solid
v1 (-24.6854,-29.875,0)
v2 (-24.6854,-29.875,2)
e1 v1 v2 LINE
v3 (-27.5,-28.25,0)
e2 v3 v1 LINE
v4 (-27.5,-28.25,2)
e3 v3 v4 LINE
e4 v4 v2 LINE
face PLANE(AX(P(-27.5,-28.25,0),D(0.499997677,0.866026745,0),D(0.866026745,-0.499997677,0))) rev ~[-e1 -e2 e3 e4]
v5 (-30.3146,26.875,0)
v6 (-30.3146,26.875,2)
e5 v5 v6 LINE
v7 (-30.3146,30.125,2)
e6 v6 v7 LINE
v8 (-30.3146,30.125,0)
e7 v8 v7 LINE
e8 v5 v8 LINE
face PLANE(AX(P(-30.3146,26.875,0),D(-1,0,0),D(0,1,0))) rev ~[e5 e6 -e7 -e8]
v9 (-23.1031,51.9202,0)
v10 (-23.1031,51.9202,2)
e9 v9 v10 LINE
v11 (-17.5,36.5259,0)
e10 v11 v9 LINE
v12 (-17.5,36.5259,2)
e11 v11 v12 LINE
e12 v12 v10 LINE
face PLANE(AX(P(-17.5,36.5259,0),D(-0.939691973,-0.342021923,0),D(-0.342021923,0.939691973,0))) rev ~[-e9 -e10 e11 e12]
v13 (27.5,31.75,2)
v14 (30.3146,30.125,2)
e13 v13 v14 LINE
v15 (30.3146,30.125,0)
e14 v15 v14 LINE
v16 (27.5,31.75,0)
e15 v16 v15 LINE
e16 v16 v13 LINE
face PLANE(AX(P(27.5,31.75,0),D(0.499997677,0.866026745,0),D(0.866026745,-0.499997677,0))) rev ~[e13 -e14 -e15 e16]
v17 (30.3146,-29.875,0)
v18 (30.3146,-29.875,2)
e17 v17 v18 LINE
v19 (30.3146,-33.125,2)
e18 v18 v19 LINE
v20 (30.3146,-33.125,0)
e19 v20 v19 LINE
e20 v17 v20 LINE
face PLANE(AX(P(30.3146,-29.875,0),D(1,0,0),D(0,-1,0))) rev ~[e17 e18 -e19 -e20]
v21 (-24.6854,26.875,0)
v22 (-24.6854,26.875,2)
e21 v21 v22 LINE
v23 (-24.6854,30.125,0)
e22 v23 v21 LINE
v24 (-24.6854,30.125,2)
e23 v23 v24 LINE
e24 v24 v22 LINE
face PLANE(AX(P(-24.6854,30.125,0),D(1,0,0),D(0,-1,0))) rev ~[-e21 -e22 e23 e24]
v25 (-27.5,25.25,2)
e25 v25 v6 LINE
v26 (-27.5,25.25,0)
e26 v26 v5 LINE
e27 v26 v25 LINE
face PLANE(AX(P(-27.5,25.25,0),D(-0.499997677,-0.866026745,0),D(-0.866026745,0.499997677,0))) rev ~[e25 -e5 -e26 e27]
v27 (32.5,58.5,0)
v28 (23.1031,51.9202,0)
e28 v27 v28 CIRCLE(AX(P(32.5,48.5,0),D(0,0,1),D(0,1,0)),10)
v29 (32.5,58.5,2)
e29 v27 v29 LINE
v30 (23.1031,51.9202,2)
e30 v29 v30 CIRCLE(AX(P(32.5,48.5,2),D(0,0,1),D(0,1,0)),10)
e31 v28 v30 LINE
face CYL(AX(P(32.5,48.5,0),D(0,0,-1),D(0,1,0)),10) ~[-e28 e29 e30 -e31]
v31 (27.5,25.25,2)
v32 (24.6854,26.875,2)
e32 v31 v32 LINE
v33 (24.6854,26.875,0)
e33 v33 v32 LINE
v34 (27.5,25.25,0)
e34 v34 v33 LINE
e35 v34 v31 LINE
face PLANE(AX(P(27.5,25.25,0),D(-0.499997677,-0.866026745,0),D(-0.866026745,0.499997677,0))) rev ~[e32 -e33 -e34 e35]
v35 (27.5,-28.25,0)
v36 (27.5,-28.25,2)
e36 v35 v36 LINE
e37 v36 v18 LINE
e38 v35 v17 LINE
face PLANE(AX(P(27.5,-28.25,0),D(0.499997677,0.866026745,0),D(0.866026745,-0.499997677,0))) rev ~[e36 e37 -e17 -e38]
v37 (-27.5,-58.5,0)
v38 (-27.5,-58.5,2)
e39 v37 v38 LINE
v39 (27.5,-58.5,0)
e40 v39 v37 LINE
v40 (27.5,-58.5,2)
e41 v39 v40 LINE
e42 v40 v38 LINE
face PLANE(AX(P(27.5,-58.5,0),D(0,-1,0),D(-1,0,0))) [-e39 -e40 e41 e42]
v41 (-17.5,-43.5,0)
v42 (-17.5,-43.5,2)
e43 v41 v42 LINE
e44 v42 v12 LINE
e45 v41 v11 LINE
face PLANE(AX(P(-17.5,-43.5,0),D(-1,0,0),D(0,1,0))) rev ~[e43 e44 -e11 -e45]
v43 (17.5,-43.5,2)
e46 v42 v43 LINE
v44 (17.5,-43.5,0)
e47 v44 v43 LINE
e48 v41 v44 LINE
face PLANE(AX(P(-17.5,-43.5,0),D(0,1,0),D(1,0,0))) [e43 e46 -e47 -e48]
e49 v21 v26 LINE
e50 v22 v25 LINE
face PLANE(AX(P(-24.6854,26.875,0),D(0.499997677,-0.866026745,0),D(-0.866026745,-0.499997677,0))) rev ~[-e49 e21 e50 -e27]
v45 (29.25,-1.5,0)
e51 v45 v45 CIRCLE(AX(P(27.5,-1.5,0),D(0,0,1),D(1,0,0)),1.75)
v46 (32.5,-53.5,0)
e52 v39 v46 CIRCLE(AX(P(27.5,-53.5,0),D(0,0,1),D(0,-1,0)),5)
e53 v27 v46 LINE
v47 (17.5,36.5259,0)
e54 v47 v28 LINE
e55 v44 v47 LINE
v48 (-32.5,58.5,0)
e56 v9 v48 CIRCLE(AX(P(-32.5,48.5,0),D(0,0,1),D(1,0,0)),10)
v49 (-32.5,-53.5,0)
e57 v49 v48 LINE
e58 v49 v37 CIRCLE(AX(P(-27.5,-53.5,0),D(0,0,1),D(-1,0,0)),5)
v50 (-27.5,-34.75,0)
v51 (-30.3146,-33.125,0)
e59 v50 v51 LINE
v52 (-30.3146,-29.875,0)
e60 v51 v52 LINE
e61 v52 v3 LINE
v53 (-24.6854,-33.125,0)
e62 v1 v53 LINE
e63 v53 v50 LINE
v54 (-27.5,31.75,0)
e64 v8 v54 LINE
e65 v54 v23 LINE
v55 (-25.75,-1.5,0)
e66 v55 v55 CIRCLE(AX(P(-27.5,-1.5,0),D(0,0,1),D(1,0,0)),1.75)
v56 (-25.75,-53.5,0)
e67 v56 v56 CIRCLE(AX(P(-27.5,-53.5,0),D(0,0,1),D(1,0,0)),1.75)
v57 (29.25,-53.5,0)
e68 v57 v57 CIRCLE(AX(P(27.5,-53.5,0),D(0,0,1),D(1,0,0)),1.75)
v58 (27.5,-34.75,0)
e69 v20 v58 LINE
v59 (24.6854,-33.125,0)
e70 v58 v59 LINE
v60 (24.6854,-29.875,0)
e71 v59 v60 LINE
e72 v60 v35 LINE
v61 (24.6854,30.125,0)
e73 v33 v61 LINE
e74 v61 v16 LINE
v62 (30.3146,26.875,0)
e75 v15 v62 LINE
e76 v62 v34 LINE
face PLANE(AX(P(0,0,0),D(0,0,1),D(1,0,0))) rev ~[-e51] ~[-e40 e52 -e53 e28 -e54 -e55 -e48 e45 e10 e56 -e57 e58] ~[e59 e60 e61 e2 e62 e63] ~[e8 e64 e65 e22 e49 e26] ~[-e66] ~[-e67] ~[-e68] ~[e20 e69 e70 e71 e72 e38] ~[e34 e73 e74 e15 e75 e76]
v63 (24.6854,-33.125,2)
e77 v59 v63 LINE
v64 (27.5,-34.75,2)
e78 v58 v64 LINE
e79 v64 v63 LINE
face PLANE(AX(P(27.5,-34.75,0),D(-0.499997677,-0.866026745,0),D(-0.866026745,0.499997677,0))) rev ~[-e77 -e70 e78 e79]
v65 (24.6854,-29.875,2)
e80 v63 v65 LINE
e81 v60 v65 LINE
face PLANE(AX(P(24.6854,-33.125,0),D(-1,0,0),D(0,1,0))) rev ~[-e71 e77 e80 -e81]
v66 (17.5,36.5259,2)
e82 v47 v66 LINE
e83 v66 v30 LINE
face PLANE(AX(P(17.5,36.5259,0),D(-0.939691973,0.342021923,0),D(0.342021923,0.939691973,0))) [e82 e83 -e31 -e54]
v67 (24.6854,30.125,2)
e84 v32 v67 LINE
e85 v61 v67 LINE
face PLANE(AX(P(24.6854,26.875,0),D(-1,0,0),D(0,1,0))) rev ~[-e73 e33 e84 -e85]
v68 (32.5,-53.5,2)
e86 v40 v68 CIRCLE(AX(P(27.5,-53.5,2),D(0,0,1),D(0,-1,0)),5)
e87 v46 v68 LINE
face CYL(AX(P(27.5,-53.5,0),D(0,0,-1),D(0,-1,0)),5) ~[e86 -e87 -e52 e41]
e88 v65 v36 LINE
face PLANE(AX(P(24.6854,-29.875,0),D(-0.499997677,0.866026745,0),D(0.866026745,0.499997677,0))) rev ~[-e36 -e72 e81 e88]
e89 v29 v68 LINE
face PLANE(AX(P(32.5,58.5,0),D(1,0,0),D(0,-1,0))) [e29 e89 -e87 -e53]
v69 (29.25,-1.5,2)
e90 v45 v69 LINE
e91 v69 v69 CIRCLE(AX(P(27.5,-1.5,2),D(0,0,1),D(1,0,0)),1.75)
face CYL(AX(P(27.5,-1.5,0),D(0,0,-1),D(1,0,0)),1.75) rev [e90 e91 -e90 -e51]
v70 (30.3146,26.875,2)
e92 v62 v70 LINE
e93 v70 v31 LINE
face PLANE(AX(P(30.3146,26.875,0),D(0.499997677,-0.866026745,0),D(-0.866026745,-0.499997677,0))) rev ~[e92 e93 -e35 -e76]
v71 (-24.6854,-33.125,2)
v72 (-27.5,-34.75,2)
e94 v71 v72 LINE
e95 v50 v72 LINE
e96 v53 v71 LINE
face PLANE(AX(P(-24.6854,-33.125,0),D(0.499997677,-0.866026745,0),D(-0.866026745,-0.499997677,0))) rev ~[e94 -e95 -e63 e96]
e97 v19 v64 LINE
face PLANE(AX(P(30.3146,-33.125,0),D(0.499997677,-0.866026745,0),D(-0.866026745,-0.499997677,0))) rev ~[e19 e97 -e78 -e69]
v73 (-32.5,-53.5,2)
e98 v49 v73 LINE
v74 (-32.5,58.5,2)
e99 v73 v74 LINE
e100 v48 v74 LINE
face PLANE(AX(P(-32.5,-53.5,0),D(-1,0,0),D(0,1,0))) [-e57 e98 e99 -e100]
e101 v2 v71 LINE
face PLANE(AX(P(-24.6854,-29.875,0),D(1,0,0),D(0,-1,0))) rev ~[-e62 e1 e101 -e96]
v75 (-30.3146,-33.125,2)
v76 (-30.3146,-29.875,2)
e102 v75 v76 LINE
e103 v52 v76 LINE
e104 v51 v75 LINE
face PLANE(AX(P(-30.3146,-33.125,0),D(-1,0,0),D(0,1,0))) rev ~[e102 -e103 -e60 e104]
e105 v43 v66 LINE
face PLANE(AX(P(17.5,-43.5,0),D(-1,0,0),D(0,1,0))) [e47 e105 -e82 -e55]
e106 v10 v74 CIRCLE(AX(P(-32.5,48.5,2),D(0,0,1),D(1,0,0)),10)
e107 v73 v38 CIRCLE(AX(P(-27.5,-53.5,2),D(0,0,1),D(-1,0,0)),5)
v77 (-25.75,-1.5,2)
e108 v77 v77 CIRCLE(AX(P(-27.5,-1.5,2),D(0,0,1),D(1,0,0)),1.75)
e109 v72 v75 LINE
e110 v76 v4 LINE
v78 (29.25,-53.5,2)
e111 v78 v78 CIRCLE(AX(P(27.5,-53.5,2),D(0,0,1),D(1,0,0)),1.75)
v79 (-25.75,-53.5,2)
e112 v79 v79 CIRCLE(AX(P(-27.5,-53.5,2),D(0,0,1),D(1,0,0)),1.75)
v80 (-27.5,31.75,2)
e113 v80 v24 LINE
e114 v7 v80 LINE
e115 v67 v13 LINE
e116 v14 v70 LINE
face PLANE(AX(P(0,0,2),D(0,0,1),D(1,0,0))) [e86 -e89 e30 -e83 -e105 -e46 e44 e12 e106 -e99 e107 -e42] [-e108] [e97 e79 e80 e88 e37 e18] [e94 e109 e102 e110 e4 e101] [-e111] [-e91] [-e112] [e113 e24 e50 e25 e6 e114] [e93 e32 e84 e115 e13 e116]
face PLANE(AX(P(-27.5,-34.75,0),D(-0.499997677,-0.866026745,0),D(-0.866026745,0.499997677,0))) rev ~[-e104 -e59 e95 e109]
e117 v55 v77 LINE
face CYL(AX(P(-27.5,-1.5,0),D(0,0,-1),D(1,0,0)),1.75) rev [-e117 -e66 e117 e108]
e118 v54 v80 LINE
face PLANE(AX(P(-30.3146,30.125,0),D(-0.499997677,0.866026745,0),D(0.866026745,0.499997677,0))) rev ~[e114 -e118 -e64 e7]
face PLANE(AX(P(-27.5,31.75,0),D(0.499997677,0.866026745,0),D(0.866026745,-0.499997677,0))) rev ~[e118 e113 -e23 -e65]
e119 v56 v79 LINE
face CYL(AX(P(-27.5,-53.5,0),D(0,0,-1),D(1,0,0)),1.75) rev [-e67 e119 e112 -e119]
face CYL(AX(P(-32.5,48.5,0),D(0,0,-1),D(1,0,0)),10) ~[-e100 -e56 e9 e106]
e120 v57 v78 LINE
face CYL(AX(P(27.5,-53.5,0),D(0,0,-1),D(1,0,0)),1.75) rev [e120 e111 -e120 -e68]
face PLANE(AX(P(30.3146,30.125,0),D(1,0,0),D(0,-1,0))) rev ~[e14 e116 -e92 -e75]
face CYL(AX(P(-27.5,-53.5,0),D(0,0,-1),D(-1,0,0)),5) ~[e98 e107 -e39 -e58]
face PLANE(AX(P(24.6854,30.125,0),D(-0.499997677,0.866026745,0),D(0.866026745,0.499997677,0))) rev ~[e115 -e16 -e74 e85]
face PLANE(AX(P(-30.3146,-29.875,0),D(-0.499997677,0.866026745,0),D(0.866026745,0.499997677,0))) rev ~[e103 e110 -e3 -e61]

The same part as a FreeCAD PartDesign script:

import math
import FreeCAD as App
import Part
import Sketcher
Q = App.Units.Quantity

doc = App.newDocument("Part")
body = doc.addObject("PartDesign::Body", "Body")

# Sketch on XY plane
sketch1 = body.newObject("Sketcher::SketchObject", "Sketch")
sketch1.AttachmentSupport = (doc.getObject("XY_Plane"), [""])
sketch1.MapMode = "FlatFace"
sketch1.addGeometry([
    Part.LineSegment(App.Vector(-32.5, 58.5, 0), App.Vector(-32.5, -53.5, 0)),  # 0
    Part.ArcOfCircle(Part.Circle(App.Vector(-27.5, -53.5, 0), App.Vector(0, 0, 1), 5), math.radians(180), math.radians(270)),  # 1
    Part.LineSegment(App.Vector(-27.5, -58.5, 0), App.Vector(27.5, -58.5, 0)),  # 2
    Part.ArcOfCircle(Part.Circle(App.Vector(27.5, -53.5, 0), App.Vector(0, 0, 1), 5), math.radians(-90), math.radians(0)),  # 3
    Part.LineSegment(App.Vector(32.5, -53.5, 0), App.Vector(32.5, 58.5, 0)),  # 4
    Part.ArcOfCircle(Part.Circle(App.Vector(32.5, 48.5, 0), App.Vector(0, 0, 1), 10), math.radians(90), math.radians(160)),  # 5
    Part.LineSegment(App.Vector(23.1, 51.9, 0), App.Vector(17.5, 36.5, 0)),  # 6
    Part.LineSegment(App.Vector(17.5, 36.5, 0), App.Vector(17.5, -43.5, 0)),  # 7
    Part.LineSegment(App.Vector(17.5, -43.5, 0), App.Vector(-17.5, -43.5, 0)),  # 8
    Part.LineSegment(App.Vector(-17.5, -43.5, 0), App.Vector(-17.5, 36.5, 0)),  # 9
    Part.LineSegment(App.Vector(-17.5, 36.5, 0), App.Vector(-23.1, 51.9, 0)),  # 10
    Part.ArcOfCircle(Part.Circle(App.Vector(-32.5, 48.5, 0), App.Vector(0, 0, 1), 10), math.radians(20), math.radians(90)),  # 11
    Part.Circle(App.Vector(-27.5, -53.5, 0), App.Vector(0, 0, 1), 1.8),  # 12
    Part.LineSegment(App.Vector(-24.7, -29.9, 0), App.Vector(-24.7, -33.1, 0)),  # 13
    Part.LineSegment(App.Vector(-24.7, -33.1, 0), App.Vector(-27.5, -34.8, 0)),  # 14
    Part.LineSegment(App.Vector(-27.5, -34.8, 0), App.Vector(-30.3, -33.1, 0)),  # 15
    Part.LineSegment(App.Vector(-30.3, -33.1, 0), App.Vector(-30.3, -29.9, 0)),  # 16
    Part.LineSegment(App.Vector(-30.3, -29.9, 0), App.Vector(-27.5, -28.2, 0)),  # 17
    Part.LineSegment(App.Vector(-27.5, -28.2, 0), App.Vector(-24.7, -29.9, 0)),  # 18
    Part.Circle(App.Vector(-27.5, -1.5, 0), App.Vector(0, 0, 1), 1.8),  # 19
    Part.Circle(App.Vector(27.5, -53.5, 0), App.Vector(0, 0, 1), 1.8),  # 20
    Part.LineSegment(App.Vector(30.3, -29.9, 0), App.Vector(30.3, -33.1, 0)),  # 21
    Part.LineSegment(App.Vector(30.3, -33.1, 0), App.Vector(27.5, -34.8, 0)),  # 22
    Part.LineSegment(App.Vector(27.5, -34.8, 0), App.Vector(24.7, -33.1, 0)),  # 23
    Part.LineSegment(App.Vector(24.7, -33.1, 0), App.Vector(24.7, -29.9, 0)),  # 24
    Part.LineSegment(App.Vector(24.7, -29.9, 0), App.Vector(27.5, -28.2, 0)),  # 25
    Part.LineSegment(App.Vector(27.5, -28.2, 0), App.Vector(30.3, -29.9, 0)),  # 26
    Part.Circle(App.Vector(27.5, -1.5, 0), App.Vector(0, 0, 1), 1.8),  # 27
    Part.LineSegment(App.Vector(-24.7, 30.1, 0), App.Vector(-24.7, 26.9, 0)),  # 28
    Part.LineSegment(App.Vector(-24.7, 26.9, 0), App.Vector(-27.5, 25.2, 0)),  # 29
    Part.LineSegment(App.Vector(-27.5, 25.2, 0), App.Vector(-30.3, 26.9, 0)),  # 30
    Part.LineSegment(App.Vector(-30.3, 26.9, 0), App.Vector(-30.3, 30.1, 0)),  # 31
    Part.LineSegment(App.Vector(-30.3, 30.1, 0), App.Vector(-27.5, 31.8, 0)),  # 32
    Part.LineSegment(App.Vector(-27.5, 31.8, 0), App.Vector(-24.7, 30.1, 0)),  # 33
    Part.LineSegment(App.Vector(27.5, 31.8, 0), App.Vector(30.3, 30.1, 0)),  # 34
    Part.LineSegment(App.Vector(30.3, 30.1, 0), App.Vector(30.3, 26.9, 0)),  # 35
    Part.LineSegment(App.Vector(30.3, 26.9, 0), App.Vector(27.5, 25.2, 0)),  # 36
    Part.LineSegment(App.Vector(27.5, 25.2, 0), App.Vector(24.7, 26.9, 0)),  # 37
    Part.LineSegment(App.Vector(24.7, 26.9, 0), App.Vector(24.7, 30.1, 0)),  # 38
    Part.LineSegment(App.Vector(24.7, 30.1, 0), App.Vector(27.5, 31.8, 0)),  # 39
], False)
sketch1.addConstraint([
    Sketcher.Constraint("Tangent", 0, 2, 1, 1),
    Sketcher.Constraint("Tangent", 1, 2, 2, 1),
    Sketcher.Constraint("Tangent", 2, 2, 3, 1),
    Sketcher.Constraint("Tangent", 3, 2, 4, 1),
    Sketcher.Constraint("Coincident", 4, 2, 5, 1),
    Sketcher.Constraint("Tangent", 5, 2, 6, 1),
    Sketcher.Constraint("Coincident", 6, 2, 7, 1),
    Sketcher.Constraint("Coincident", 7, 2, 8, 1),
    Sketcher.Constraint("Coincident", 8, 2, 9, 1),
    Sketcher.Constraint("Coincident", 9, 2, 10, 1),
    Sketcher.Constraint("Tangent", 10, 2, 11, 1),
    Sketcher.Constraint("Coincident", 11, 2, 0, 1),
    Sketcher.Constraint("Coincident", 13, 2, 14, 1),
    Sketcher.Constraint("Coincident", 14, 2, 15, 1),
    Sketcher.Constraint("Coincident", 15, 2, 16, 1),
    Sketcher.Constraint("Coincident", 16, 2, 17, 1),
    Sketcher.Constraint("Coincident", 17, 2, 18, 1),
    Sketcher.Constraint("Coincident", 18, 2, 13, 1),
    Sketcher.Constraint("Coincident", 21, 2, 22, 1),
    Sketcher.Constraint("Coincident", 22, 2, 23, 1),
    Sketcher.Constraint("Coincident", 23, 2, 24, 1),
    Sketcher.Constraint("Coincident", 24, 2, 25, 1),
    Sketcher.Constraint("Coincident", 25, 2, 26, 1),
    Sketcher.Constraint("Coincident", 26, 2, 21, 1),
    Sketcher.Constraint("Coincident", 28, 2, 29, 1),
    Sketcher.Constraint("Coincident", 29, 2, 30, 1),
    Sketcher.Constraint("Coincident", 30, 2, 31, 1),
    Sketcher.Constraint("Coincident", 31, 2, 32, 1),
    Sketcher.Constraint("Coincident", 32, 2, 33, 1),
    Sketcher.Constraint("Coincident", 33, 2, 28, 1),
    Sketcher.Constraint("Coincident", 34, 2, 35, 1),
    Sketcher.Constraint("Coincident", 35, 2, 36, 1),
    Sketcher.Constraint("Coincident", 36, 2, 37, 1),
    Sketcher.Constraint("Coincident", 37, 2, 38, 1),
    Sketcher.Constraint("Coincident", 38, 2, 39, 1),
    Sketcher.Constraint("Coincident", 39, 2, 34, 1),
    Sketcher.Constraint("Vertical", 0),
    Sketcher.Constraint("Horizontal", 2),
    Sketcher.Constraint("Vertical", 4),
    Sketcher.Constraint("Vertical", 7),
    Sketcher.Constraint("Horizontal", 8),
    Sketcher.Constraint("Vertical", 9),
    Sketcher.Constraint("Vertical", 13),
    Sketcher.Constraint("Vertical", 16),
    Sketcher.Constraint("Vertical", 21),
    Sketcher.Constraint("Vertical", 24),
    Sketcher.Constraint("Vertical", 28),
    Sketcher.Constraint("Vertical", 31),
    Sketcher.Constraint("Vertical", 35),
    Sketcher.Constraint("Vertical", 38),
    Sketcher.Constraint("Coincident", 12, 3, 1, 3),
    Sketcher.Constraint("Coincident", 20, 3, 3, 3),
    Sketcher.Constraint("Equal", 1, 3),
    Sketcher.Constraint("Equal", 5, 11),
    Sketcher.Constraint("Equal", 12, 19),
    Sketcher.Constraint("Equal", 19, 20),
    Sketcher.Constraint("Equal", 20, 27),
    Sketcher.Constraint("Symmetric", 5, 3, 11, 3, -2),
    Sketcher.Constraint("Symmetric", 19, 3, 27, 3, -2),
    Sketcher.Constraint("Symmetric", 6, 2, 9, 2, -2),
    Sketcher.Constraint("Symmetric", 15, 2, 21, 2, -2),
    Sketcher.Constraint("Symmetric", 14, 2, 22, 2, -2),
    Sketcher.Constraint("Symmetric", 13, 2, 23, 2, -2),
    Sketcher.Constraint("Symmetric", 17, 2, 25, 2, -2),
    Sketcher.Constraint("Symmetric", 31, 2, 34, 2, -2),
    Sketcher.Constraint("Symmetric", 29, 2, 36, 2, -2),
    Sketcher.Constraint("Symmetric", 28, 2, 37, 2, -2),
    Sketcher.Constraint("Symmetric", 32, 2, 39, 2, -2),
    Sketcher.Constraint("Parallel", 14, 17),
    Sketcher.Constraint("Parallel", 15, 18),
    Sketcher.Constraint("Parallel", 17, 22),
    Sketcher.Constraint("Parallel", 22, 25),
    Sketcher.Constraint("Parallel", 23, 26),
    Sketcher.Constraint("Parallel", 25, 29),
    Sketcher.Constraint("Parallel", 26, 30),
    Sketcher.Constraint("Parallel", 29, 32),
    Sketcher.Constraint("Parallel", 30, 33),
    Sketcher.Constraint("Parallel", 32, 36),
    Sketcher.Constraint("Parallel", 36, 39),
    Sketcher.Constraint("Horizontal", 13, 2, 15, 2),
    Sketcher.Constraint("Horizontal", 16, 2, 18, 2),
    Sketcher.Constraint("Horizontal", 28, 2, 30, 2),
    Sketcher.Constraint("Horizontal", 31, 2, 33, 2),
    Sketcher.Constraint("Vertical", 12, 3, 19, 3),
    Sketcher.Constraint("Vertical", 20, 3, 27, 3),
    Sketcher.Constraint("Vertical", 11, 3, 0, 2),
    Sketcher.Constraint("Vertical", 1, 2, 14, 2),
    Sketcher.Constraint("Vertical", 18, 2, 28, 2),
    Sketcher.Constraint("Vertical", 17, 2, 29, 2),
    Sketcher.Constraint("Equal", 24, 28),
    Sketcher.Constraint("Radius", 1, Q("5 mm")),
    Sketcher.Constraint("Radius", 5, Q("10 mm")),
    Sketcher.Constraint("Diameter", 12, Q("3.5 mm")),
    Sketcher.Constraint("DistanceX", 2, 1, 2, 2, Q("55 mm")),
    Sketcher.Constraint("DistanceX", 8, 2, 8, 1, Q("35 mm")),
    Sketcher.Constraint("DistanceY", 0, 2, 0, 1, Q("112 mm")),
    Sketcher.Constraint("Angle", 6, Q("-110 deg")),
    Sketcher.Constraint("Angle", 14, Q("-150.0002 deg")),
    Sketcher.Constraint("DistanceY", 19, 3, 11, 3, Q("50 mm")),
    Sketcher.Constraint("DistanceY", 3, 3, 7, 2, Q("10 mm")),
    Sketcher.Constraint("DistanceY", 13, 2, 13, 1, Q("3.25 mm")),
    Sketcher.Constraint("DistanceY", 1, 3, -1, 1, Q("53.5 mm")),
    Sketcher.Constraint("DistanceY", 14, 2, 17, 2, Q("6.5 mm")),
    Sketcher.Constraint("DistanceY", 14, 2, -1, 1, Q("34.75 mm")),
    Sketcher.Constraint("DistanceY", -1, 1, 29, 2, Q("25.25 mm")),
])
pad1 = body.newObject("PartDesign::Pad", "Pad")
pad1.Profile = sketch1
pad1.Length = 2

doc.recompute()
